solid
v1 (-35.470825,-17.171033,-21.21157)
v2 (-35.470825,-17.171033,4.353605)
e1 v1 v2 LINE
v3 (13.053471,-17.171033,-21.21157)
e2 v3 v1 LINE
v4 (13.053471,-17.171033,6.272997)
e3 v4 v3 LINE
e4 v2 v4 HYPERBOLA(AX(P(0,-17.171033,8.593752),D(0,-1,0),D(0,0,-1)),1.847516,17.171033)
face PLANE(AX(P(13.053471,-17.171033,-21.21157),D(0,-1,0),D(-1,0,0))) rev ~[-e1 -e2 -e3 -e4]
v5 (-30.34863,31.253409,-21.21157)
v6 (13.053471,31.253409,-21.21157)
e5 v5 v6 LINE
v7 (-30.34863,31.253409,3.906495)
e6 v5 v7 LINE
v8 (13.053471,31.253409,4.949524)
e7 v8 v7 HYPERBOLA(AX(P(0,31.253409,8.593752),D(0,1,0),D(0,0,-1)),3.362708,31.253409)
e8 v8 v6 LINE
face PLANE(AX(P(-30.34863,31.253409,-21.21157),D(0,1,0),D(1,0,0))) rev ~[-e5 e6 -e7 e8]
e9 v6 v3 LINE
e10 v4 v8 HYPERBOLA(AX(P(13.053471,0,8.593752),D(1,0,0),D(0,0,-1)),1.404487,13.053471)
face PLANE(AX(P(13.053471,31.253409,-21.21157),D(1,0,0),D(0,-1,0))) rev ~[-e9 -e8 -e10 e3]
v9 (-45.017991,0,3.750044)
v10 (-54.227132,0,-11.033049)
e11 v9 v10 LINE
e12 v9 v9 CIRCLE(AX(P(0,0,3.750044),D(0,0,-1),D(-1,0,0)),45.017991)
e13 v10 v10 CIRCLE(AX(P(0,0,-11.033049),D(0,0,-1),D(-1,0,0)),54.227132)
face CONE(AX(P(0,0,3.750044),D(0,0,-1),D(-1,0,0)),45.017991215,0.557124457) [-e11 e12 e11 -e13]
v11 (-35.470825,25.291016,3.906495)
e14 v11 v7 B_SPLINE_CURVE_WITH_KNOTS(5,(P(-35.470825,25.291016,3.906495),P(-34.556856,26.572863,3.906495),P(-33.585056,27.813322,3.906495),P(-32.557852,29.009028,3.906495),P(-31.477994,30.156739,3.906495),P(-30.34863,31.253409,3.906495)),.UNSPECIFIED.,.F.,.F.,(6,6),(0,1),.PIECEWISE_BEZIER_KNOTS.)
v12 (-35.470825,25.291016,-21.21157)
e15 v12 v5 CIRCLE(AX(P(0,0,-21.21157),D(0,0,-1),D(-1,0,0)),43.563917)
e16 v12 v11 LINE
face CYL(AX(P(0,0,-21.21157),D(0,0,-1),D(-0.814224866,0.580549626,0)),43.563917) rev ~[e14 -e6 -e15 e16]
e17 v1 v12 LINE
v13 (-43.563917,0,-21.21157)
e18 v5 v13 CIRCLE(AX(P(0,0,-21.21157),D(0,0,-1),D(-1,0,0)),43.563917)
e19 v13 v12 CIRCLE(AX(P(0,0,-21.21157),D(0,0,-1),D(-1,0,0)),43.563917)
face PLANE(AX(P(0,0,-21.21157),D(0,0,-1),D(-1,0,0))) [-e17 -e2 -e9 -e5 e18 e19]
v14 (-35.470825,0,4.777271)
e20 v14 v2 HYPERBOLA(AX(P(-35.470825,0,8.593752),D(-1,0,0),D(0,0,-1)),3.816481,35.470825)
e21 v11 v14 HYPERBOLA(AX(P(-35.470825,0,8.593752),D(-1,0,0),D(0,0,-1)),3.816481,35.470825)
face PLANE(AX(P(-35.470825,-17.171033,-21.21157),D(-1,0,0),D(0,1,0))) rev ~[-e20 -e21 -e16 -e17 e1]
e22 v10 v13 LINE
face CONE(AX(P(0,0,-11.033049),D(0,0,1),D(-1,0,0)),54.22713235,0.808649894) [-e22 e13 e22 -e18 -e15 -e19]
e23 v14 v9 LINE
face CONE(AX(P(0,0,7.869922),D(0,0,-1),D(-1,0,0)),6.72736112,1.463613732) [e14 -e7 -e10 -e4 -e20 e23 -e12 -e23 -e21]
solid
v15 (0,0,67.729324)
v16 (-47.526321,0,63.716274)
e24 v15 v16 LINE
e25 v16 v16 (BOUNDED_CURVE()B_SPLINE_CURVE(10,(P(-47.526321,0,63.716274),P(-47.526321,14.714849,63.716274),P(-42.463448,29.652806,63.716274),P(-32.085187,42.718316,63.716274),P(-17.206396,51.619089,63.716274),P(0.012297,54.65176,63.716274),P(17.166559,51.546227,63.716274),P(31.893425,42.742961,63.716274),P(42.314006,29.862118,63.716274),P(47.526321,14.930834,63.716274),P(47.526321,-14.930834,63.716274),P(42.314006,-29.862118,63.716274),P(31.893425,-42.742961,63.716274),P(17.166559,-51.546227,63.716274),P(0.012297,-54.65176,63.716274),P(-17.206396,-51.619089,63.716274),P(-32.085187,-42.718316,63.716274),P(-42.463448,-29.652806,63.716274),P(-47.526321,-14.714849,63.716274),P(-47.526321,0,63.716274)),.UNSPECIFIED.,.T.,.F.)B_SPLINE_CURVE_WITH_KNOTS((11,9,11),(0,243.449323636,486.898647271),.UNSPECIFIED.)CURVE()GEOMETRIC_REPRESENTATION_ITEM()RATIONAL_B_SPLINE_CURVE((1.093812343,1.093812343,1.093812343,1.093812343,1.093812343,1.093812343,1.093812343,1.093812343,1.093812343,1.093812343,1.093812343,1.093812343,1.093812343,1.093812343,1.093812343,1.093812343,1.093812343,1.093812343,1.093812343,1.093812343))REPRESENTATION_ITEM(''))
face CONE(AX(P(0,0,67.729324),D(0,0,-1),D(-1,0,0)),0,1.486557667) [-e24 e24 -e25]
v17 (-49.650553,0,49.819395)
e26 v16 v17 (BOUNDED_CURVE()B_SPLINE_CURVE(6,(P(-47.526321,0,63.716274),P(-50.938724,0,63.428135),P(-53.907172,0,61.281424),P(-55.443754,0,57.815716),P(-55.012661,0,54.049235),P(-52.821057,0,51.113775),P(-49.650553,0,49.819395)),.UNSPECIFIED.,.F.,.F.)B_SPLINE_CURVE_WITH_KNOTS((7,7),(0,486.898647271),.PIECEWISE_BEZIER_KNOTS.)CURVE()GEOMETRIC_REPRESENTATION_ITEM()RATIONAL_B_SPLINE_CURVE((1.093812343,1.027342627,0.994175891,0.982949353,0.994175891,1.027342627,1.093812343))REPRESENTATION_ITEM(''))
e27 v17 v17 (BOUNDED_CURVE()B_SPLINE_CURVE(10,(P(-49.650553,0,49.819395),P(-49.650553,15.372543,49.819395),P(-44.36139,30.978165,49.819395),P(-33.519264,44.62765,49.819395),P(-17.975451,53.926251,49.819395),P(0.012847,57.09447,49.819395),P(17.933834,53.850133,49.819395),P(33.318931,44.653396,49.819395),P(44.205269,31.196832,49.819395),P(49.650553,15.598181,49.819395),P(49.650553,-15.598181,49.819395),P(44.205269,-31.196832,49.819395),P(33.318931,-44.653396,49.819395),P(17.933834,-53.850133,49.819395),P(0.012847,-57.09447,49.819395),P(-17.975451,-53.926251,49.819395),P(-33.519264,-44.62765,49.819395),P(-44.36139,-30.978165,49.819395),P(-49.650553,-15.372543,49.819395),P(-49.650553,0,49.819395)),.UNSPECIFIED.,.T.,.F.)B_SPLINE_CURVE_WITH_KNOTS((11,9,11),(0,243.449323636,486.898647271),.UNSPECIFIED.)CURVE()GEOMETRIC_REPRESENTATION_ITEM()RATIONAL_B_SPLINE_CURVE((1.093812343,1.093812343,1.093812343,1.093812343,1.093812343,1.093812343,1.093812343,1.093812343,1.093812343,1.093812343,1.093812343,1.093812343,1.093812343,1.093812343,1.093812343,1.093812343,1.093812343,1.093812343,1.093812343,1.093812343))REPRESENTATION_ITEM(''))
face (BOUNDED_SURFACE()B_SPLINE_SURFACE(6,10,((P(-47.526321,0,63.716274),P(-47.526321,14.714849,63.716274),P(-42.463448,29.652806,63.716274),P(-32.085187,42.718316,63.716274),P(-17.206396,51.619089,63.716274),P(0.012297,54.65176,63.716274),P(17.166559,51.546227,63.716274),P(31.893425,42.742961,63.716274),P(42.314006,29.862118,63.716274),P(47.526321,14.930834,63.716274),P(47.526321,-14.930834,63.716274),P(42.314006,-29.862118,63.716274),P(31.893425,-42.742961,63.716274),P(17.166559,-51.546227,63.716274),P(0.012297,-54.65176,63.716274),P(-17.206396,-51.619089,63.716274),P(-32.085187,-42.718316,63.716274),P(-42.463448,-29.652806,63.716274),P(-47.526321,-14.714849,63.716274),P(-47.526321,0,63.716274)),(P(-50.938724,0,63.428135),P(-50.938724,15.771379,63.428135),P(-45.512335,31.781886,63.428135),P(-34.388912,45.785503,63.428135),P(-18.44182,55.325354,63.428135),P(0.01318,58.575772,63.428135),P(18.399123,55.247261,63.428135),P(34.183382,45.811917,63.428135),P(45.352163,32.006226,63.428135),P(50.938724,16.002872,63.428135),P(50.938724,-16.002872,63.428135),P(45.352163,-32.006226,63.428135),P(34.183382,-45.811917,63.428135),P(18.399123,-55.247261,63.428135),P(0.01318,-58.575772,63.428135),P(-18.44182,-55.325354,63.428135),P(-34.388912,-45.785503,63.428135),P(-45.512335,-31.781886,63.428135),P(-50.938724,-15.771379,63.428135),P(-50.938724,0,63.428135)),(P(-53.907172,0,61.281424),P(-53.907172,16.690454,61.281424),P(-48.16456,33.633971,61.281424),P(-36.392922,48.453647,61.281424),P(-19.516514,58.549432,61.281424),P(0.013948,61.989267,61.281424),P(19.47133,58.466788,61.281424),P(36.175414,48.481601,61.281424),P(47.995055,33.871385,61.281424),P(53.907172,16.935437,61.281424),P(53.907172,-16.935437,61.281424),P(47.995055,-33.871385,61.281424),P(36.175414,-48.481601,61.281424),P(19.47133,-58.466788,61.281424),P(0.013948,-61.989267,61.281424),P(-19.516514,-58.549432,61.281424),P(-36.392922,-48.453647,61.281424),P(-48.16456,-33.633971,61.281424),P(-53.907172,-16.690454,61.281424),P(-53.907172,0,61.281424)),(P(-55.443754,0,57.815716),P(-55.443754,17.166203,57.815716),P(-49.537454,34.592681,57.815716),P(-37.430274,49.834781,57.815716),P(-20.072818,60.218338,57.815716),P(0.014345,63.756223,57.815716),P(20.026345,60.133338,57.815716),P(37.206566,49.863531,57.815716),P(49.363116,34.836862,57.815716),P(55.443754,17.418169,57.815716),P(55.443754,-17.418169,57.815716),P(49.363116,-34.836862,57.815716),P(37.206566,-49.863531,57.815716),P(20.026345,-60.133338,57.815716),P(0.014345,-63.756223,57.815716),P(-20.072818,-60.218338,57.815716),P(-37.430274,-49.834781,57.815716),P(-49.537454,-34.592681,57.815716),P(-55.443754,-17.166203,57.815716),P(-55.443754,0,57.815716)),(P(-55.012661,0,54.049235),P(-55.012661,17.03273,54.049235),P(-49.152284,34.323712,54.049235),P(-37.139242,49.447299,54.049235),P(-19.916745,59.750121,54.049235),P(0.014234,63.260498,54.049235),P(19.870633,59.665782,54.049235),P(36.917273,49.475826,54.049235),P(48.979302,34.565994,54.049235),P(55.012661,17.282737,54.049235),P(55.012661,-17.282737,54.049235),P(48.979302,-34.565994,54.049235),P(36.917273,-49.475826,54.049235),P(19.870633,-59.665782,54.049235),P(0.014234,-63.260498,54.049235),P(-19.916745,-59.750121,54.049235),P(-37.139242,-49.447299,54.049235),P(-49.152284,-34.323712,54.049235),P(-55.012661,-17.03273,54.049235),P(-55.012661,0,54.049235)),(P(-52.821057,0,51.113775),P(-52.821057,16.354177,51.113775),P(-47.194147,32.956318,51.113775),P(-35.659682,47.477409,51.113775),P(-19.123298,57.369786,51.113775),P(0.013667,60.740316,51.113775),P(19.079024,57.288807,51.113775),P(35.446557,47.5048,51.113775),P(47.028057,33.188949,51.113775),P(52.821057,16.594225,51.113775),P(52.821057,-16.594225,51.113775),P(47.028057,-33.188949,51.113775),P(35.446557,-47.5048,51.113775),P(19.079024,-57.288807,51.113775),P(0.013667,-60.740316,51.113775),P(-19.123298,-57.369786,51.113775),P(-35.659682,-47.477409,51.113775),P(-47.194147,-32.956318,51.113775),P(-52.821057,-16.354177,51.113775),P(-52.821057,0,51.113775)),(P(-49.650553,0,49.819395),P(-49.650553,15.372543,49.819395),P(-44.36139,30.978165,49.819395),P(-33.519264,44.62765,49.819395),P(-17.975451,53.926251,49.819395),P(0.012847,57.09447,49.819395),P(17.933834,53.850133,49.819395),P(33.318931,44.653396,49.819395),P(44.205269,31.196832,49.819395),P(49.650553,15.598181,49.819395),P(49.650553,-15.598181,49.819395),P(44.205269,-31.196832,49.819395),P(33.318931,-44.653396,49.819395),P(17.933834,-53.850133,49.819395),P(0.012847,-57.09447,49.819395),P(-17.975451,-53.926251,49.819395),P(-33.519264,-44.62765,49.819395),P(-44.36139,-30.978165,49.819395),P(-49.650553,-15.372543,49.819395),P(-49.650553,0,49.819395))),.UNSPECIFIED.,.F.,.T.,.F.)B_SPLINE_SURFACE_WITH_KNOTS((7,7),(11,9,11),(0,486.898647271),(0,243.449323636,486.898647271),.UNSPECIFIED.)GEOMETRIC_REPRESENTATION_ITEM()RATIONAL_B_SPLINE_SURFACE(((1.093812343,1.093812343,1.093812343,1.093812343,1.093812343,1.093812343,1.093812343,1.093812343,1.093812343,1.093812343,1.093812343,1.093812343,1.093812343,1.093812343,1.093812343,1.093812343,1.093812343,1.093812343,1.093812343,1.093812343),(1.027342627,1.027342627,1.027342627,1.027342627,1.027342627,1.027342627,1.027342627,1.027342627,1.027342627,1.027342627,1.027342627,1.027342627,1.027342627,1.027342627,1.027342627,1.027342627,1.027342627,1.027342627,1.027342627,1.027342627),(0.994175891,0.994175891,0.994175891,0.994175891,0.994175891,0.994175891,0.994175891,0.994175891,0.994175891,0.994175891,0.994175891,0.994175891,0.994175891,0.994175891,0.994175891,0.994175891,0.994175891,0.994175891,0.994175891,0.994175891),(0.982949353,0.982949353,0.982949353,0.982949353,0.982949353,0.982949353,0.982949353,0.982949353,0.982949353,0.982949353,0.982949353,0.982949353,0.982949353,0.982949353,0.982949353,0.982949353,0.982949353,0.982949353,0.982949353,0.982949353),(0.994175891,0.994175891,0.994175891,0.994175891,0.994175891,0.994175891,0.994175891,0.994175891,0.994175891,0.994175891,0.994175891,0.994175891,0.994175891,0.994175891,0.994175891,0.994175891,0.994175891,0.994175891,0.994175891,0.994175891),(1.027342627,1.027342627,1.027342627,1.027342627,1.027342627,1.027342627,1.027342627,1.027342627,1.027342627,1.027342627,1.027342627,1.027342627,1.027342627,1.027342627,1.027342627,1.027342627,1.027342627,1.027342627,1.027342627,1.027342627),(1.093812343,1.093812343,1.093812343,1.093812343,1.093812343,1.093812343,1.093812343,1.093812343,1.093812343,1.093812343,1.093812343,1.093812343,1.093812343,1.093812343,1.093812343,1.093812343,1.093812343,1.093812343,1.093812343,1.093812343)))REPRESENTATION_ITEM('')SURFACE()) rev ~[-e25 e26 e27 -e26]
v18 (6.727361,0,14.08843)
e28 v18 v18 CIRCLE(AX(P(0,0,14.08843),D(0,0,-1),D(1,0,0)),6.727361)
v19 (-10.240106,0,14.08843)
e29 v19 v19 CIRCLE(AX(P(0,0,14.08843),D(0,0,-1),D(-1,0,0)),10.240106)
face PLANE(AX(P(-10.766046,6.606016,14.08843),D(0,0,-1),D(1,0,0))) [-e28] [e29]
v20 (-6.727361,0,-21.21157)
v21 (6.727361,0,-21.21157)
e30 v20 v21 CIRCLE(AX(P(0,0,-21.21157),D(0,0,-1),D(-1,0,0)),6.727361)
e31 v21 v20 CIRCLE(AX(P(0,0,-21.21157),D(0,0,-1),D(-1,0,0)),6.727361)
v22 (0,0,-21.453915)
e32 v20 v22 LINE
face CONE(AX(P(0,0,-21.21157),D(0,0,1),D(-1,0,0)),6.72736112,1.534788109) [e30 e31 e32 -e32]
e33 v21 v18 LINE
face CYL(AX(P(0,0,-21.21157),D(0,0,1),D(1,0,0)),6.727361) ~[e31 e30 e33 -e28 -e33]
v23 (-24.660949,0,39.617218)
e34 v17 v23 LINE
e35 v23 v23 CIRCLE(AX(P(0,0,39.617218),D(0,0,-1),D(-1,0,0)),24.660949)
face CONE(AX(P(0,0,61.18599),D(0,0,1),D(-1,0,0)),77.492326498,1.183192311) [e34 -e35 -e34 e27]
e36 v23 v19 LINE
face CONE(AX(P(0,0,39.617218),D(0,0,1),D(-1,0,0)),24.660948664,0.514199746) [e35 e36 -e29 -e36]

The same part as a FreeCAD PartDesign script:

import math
import FreeCAD as App
import Part
import Sketcher
Q = App.Units.Quantity


def edges_at(feature, points):
    """Names of the edges that pass closest to the given points."""
    edges = feature.Shape.Edges
    near = lambda p: min(range(len(edges)), key=lambda i: edges[i].distToShape(Part.Vertex(*p))[0])
    return sorted({f"Edge{near(p) + 1}" for p in points})


def add_polygon(sketch, points):
    """Adds a closed chain of lines whose ends are joined by coincident constraints."""
    first, n = sketch.GeometryCount, len(points)
    for a, b in zip(points, points[1:] + points[:1]):
        sketch.addGeometry(Part.LineSegment(App.Vector(*a, 0), App.Vector(*b, 0)), False)
    for i in range(n):
        sketch.addConstraint(Sketcher.Constraint("Coincident", first + i, 2, first + (i + 1) % n, 1))

doc = App.newDocument("Part")
body = doc.addObject("PartDesign::Body", "Body")
body.AllowCompound = True

# Sketch on XZ plane
sketch1 = body.newObject("Sketcher::SketchObject", "Sketch")
sketch1.AttachmentSupport = (doc.getObject("XZ_Plane"), [""])
sketch1.MapMode = "FlatFace"
add_polygon(sketch1, [(-44, -21), (-7, -21), (0, -21), (0, 68), (-77, 61), (-25, 40), (-7, 8), (-45, 4), (-54, -11)])  # lines 0-8
sketch1.addConstraint([
    Sketcher.Constraint("Horizontal", 0),
    Sketcher.Constraint("Vertical", 2),
    Sketcher.Constraint("PointOnObject", 1, 2, -2),
    Sketcher.Constraint("Vertical", 0, 2, 5, 2),
    Sketcher.Constraint("DistanceY", 2, 1, 2, 2, Q("89.183239 mm")),
    Sketcher.Constraint("Distance", 3, Q("77.76809 mm")),
    Sketcher.Constraint("Distance", 4, Q("57.064581 mm")),
    Sketcher.Constraint("Distance", 5, Q("36.46237 mm")),
    Sketcher.Constraint("Distance", 6, Q("38.511631 mm")),
    Sketcher.Constraint("Distance", 7, Q("17.416892 mm")),
    Sketcher.Constraint("DistanceX", 0, 1, 0, 2, Q("36.836556 mm")),
    Sketcher.Constraint("DistanceX", 0, 2, -1, 1, Q("6.727361 mm")),
    Sketcher.Constraint("DistanceY", 0, 2, -1, 1, Q("21.21157 mm")),
    Sketcher.Constraint("DistanceY", -1, 1, 3, 2, Q("61.18599 mm")),
    Sketcher.Constraint("DistanceX", 4, 2, -1, 1, Q("24.660949 mm")),
    Sketcher.Constraint("DistanceY", -1, 1, 4, 2, Q("39.617218 mm")),
    Sketcher.Constraint("DistanceX", 6, 2, -1, 1, Q("45.017991 mm")),
    Sketcher.Constraint("DistanceY", 7, 2, -1, 1, Q("11.033049 mm")),
])
revolution = body.newObject("PartDesign::Revolution", "Revolution")
revolution.Profile = sketch1
revolution.ReferenceAxis = (sketch1, ["V_Axis"])
revolution.Angle = 360
doc.recompute()

fillet = body.newObject("PartDesign::Fillet", "Fillet")
fillet.Base = (revolution, edges_at(revolution, [(77.492, 0, 61.186)]))
fillet.Radius = 7.229405

# Sketch on XY plane
sketch2 = body.newObject("Sketcher::SketchObject", "Sketch001")
sketch2.AttachmentSupport = (doc.getObject("XY_Plane"), [""])
sketch2.MapMode = "FlatFace"
sketch2.AttachmentOffset = App.Placement(App.Vector(0, 0, -21.21157), App.Rotation())
sketch2.addGeometry([
    Part.LineSegment(App.Vector(-30, 31, 0), App.Vector(13, 31, 0)),  # 0
    Part.LineSegment(App.Vector(13, 31, 0), App.Vector(13, -17, 0)),  # 1
    Part.LineSegment(App.Vector(13, -17, 0), App.Vector(-35, -17, 0)),  # 2
    Part.LineSegment(App.Vector(-35, -17, 0), App.Vector(-35, 25, 0)),  # 3
    Part.ArcOfCircle(Part.Circle(App.Vector(0, 0, 0), App.Vector(0, 0, 1), 44), math.radians(134.16), math.radians(144.51)),  # 4
    Part.Circle(App.Vector(0, 0, 0), App.Vector(0, 0, 1), 7),  # 5
], False)
sketch2.addConstraint([
    Sketcher.Constraint("Coincident", 0, 2, 1, 1),
    Sketcher.Constraint("Coincident", 1, 2, 2, 1),
    Sketcher.Constraint("Coincident", 2, 2, 3, 1),
    Sketcher.Constraint("Coincident", 3, 2, 4, 2),
    Sketcher.Constraint("Coincident", 4, 1, 0, 1),
    Sketcher.Constraint("Horizontal", 0),
    Sketcher.Constraint("Vertical", 1),
    Sketcher.Constraint("Horizontal", 2),
    Sketcher.Constraint("Vertical", 3),
    Sketcher.Constraint("Coincident", 4, 3, -1, 1),
    Sketcher.Constraint("Coincident", 5, 3, -1, 1),
    Sketcher.Constraint("Diameter", 5, Q("13.454722 mm")),
    Sketcher.Constraint("DistanceX", 0, 1, 0, 2, Q("43.402101 mm")),
    Sketcher.Constraint("Radius", 4, Q("43.563917 mm")),
    Sketcher.Constraint("DistanceY", 1, 2, 1, 1, Q("48.424441 mm")),
    Sketcher.Constraint("DistanceY", 3, 1, 3, 2, Q("42.462049 mm")),
    Sketcher.Constraint("DistanceX", 2, 2, 2, 1, Q("48.524296 mm")),
])
pocket1 = body.newObject("PartDesign::Pocket", "Pocket")
pocket1.Profile = sketch2
pocket1.Length = 70.6
pocket1.Midplane = True

doc.recompute()
